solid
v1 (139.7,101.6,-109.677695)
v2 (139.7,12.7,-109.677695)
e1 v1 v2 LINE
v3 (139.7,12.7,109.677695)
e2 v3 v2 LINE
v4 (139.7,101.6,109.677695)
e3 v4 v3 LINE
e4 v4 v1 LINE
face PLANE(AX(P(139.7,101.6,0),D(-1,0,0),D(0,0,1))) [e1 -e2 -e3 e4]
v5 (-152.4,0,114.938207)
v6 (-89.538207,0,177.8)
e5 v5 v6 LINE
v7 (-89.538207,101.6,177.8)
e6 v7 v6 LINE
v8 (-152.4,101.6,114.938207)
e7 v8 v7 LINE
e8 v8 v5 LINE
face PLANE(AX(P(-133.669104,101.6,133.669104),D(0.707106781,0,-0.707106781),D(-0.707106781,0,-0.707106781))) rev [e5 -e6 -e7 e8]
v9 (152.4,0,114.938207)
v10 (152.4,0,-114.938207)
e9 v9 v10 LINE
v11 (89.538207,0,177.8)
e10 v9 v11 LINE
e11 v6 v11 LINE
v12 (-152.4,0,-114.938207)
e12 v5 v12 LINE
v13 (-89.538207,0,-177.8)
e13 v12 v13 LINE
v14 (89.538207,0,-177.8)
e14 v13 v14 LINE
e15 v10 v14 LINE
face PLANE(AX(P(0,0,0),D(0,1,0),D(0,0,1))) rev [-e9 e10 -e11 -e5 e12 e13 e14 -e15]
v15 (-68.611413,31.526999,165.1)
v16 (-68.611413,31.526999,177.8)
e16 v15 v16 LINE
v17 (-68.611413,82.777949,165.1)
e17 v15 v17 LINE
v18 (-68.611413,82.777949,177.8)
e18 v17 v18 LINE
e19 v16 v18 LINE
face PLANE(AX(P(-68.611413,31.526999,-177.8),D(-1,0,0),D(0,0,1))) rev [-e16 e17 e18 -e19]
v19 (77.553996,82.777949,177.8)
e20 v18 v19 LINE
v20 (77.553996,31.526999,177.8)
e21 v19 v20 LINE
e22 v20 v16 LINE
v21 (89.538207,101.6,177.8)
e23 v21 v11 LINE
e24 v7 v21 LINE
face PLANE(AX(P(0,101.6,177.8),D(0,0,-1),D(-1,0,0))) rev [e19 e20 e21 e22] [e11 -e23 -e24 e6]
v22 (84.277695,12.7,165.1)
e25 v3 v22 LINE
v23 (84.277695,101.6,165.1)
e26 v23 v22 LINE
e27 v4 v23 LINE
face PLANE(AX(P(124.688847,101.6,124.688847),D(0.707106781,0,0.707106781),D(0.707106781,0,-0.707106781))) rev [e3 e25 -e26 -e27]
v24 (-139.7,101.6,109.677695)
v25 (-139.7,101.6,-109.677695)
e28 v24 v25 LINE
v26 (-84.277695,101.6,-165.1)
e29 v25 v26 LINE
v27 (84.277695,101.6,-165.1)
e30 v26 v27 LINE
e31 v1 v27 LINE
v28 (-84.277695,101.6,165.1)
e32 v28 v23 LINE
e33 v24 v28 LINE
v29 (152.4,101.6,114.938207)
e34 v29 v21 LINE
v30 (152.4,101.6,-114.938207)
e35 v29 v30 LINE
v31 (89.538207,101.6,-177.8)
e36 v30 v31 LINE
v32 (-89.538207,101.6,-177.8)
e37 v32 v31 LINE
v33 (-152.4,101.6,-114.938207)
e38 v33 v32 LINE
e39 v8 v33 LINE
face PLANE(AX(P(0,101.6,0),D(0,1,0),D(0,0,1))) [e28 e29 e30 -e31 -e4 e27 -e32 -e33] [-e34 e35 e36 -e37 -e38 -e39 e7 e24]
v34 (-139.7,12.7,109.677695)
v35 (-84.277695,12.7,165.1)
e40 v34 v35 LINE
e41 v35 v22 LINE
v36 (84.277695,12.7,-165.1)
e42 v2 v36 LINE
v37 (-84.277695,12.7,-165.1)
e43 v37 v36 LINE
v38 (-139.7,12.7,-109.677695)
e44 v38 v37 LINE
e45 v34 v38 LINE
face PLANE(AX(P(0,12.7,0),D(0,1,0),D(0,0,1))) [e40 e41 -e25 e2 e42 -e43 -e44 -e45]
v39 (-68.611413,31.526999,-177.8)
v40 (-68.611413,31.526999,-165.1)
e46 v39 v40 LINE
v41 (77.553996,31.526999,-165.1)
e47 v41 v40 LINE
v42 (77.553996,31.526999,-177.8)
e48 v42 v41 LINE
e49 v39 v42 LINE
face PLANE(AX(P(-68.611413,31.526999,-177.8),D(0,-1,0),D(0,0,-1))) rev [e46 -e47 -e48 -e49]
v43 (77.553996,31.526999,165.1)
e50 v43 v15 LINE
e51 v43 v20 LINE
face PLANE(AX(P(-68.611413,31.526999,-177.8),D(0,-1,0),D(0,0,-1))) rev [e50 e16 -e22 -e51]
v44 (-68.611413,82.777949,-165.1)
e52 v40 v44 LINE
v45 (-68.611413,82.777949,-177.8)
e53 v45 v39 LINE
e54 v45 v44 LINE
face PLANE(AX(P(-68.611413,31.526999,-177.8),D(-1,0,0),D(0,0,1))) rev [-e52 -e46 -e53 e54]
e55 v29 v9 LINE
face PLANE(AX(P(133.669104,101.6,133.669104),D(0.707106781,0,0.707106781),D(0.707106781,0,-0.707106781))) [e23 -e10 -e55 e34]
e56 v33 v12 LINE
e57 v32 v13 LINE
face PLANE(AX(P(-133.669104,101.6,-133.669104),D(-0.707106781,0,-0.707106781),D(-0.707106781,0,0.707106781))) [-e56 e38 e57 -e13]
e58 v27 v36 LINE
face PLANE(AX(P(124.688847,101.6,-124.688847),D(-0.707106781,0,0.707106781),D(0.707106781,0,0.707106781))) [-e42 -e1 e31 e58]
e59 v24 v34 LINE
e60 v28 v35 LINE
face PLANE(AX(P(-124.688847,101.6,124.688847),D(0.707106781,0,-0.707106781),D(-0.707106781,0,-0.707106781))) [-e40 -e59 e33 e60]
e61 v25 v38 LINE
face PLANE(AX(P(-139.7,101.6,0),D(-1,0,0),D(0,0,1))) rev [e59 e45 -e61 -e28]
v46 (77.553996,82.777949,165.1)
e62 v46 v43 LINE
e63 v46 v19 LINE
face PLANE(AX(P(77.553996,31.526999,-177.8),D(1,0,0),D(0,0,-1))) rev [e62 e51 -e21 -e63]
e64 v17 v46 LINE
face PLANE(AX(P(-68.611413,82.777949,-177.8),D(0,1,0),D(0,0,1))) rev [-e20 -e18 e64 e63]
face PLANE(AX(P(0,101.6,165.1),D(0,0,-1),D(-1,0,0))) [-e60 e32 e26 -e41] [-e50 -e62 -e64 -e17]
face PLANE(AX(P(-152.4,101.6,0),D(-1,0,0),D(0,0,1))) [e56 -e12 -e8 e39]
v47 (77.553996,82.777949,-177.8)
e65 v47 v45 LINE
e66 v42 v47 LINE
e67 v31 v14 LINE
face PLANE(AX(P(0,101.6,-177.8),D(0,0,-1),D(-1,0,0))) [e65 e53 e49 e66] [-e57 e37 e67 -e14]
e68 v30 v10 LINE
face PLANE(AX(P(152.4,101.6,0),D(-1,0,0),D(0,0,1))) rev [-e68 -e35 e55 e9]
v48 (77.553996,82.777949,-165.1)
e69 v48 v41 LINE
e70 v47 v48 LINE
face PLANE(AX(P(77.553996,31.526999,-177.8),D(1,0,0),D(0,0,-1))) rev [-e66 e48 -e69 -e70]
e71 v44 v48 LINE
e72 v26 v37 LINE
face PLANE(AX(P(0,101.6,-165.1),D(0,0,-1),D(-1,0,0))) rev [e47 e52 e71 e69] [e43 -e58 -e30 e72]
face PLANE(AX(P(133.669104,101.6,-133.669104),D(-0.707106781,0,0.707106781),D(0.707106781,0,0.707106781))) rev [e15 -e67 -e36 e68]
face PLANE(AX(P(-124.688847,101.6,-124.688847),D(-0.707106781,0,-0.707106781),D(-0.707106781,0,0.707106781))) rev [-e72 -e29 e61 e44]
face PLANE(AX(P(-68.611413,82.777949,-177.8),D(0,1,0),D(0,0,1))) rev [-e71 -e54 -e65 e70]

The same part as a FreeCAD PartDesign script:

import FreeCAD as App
import Part
import Sketcher

V = App.Vector
Q = App.Units.Quantity


def faces_at(feature, points):
    """Names of the faces that lie closest to the given points."""
    faces = feature.Shape.Faces
    near = lambda p: min(range(len(faces)), key=lambda i: faces[i].distToShape(Part.Vertex(*p))[0])
    return sorted({f"Face{near(p) + 1}" for p in points})

doc = App.newDocument("Part")
body = doc.addObject("PartDesign::Body", "Body")

# Sketch on XZ plane
sketch1 = doc.addObject("Sketcher::SketchObject", "Sketch")
body.addObject(sketch1)
sketch1.AttachmentSupport = (doc.XZ_Plane, [""])
sketch1.MapMode = "FlatFace"
sketch1.addGeometry([
    Part.LineSegment(V(-90, -178, 0), V(-152, -115, 0)),  # 0
    Part.LineSegment(V(-152, -115, 0), V(-152, 115, 0)),  # 1
    Part.LineSegment(V(-152, 115, 0), V(-90, 178, 0)),  # 2
    Part.LineSegment(V(-90, 178, 0), V(90, 178, 0)),  # 3
    Part.LineSegment(V(90, 178, 0), V(152, 115, 0)),  # 4
    Part.LineSegment(V(152, 115, 0), V(152, -115, 0)),  # 5
    Part.LineSegment(V(152, -115, 0), V(90, -178, 0)),  # 6
    Part.LineSegment(V(90, -178, 0), V(-90, -178, 0)),  # 7
], False)
sketch1.addConstraint([
    Sketcher.Constraint("Coincident", 0, 2, 1, 1),
    Sketcher.Constraint("Coincident", 1, 2, 2, 1),
    Sketcher.Constraint("Coincident", 2, 2, 3, 1),
    Sketcher.Constraint("Coincident", 3, 2, 4, 1),
    Sketcher.Constraint("Coincident", 4, 2, 5, 1),
    Sketcher.Constraint("Coincident", 5, 2, 6, 1),
    Sketcher.Constraint("Coincident", 6, 2, 7, 1),
    Sketcher.Constraint("Coincident", 7, 2, 0, 1),
    Sketcher.Constraint("Vertical", 1),
    Sketcher.Constraint("Horizontal", 3),
    Sketcher.Constraint("Vertical", 5),
    Sketcher.Constraint("Horizontal", 7),
    Sketcher.Constraint("Symmetric", 0, 2, 4, 2, -1, 1),
    Sketcher.Constraint("Symmetric", 2, 2, 6, 2, -1, 1),
    Sketcher.Constraint("Perpendicular", 0, 2),
    Sketcher.Constraint("Perpendicular", 2, 4),
    Sketcher.Constraint("Perpendicular", 4, 6),
    Sketcher.Constraint("Horizontal", 1, 2, 4, 2),
    Sketcher.Constraint("Vertical", 3, 2, 6, 2),
    Sketcher.Constraint("DistanceX", 0, 2, -1, 1, Q("6 in")),
    Sketcher.Constraint("DistanceY", -1, 1, 2, 2, Q("7 in")),
    Sketcher.Constraint("Distance", 0, Q("3.5 in")),
])
pad1 = doc.addObject("PartDesign::Pad", "Pad")
body.addObject(pad1)
pad1.Profile = sketch1
pad1.Length = Q("4 in")
pad1.Reversed = True
doc.recompute()

thickness = doc.addObject("PartDesign::Thickness", "Thickness")
body.addObject(thickness)
thickness.Base = (pad1, faces_at(pad1, [(0, 101.6, 0)]))
thickness.Value = Q("0.5 in")
thickness.Reversed = True
thickness.Join = "Intersection"

# Sketch on XY plane
sketch2 = doc.addObject("Sketcher::SketchObject", "Sketch001")
body.addObject(sketch2)
sketch2.AttachmentSupport = (doc.XY_Plane, [""])
sketch2.MapMode = "FlatFace"
sketch2.AttachmentOffset = App.Placement(V(0, 0, 7 * 25.4), App.Rotation())
sketch2.addGeometry([
    Part.LineSegment(V(-69, 83, 0), V(-69, 32, 0)),
    Part.LineSegment(V(-69, 32, 0), V(78, 32, 0)),
    Part.LineSegment(V(78, 32, 0), V(78, 83, 0)),
    Part.LineSegment(V(78, 83, 0), V(-69, 83, 0)),
], False)
sketch2.addConstraint([
    Sketcher.Constraint("Coincident", 0, 2, 1, 1),
    Sketcher.Constraint("Coincident", 1, 2, 2, 1),
    Sketcher.Constraint("Coincident", 2, 2, 3, 1),
    Sketcher.Constraint("Coincident", 3, 2, 0, 1),
    Sketcher.Constraint("Vertical", 0),
    Sketcher.Constraint("Horizontal", 1),
    Sketcher.Constraint("Vertical", 2),
    Sketcher.Constraint("Horizontal", 3),
    Sketcher.Constraint("DistanceX", 1, 1, 1, 2, Q("146.165409 mm")),
    Sketcher.Constraint("DistanceY", 0, 2, 0, 1, Q("51.250951 mm")),
    Sketcher.Constraint("DistanceY", -1, 1, 0, 2, Q("31.526999 mm")),
    Sketcher.Constraint("DistanceX", 0, 2, -1, 1, Q("68.611413 mm")),
])
pocket1 = doc.addObject("PartDesign::Pocket", "Pocket")
body.addObject(pocket1)
pocket1.Profile = sketch2
pocket1.Type = "ThroughAll"
pocket1.Midplane = True

doc.recompute()
